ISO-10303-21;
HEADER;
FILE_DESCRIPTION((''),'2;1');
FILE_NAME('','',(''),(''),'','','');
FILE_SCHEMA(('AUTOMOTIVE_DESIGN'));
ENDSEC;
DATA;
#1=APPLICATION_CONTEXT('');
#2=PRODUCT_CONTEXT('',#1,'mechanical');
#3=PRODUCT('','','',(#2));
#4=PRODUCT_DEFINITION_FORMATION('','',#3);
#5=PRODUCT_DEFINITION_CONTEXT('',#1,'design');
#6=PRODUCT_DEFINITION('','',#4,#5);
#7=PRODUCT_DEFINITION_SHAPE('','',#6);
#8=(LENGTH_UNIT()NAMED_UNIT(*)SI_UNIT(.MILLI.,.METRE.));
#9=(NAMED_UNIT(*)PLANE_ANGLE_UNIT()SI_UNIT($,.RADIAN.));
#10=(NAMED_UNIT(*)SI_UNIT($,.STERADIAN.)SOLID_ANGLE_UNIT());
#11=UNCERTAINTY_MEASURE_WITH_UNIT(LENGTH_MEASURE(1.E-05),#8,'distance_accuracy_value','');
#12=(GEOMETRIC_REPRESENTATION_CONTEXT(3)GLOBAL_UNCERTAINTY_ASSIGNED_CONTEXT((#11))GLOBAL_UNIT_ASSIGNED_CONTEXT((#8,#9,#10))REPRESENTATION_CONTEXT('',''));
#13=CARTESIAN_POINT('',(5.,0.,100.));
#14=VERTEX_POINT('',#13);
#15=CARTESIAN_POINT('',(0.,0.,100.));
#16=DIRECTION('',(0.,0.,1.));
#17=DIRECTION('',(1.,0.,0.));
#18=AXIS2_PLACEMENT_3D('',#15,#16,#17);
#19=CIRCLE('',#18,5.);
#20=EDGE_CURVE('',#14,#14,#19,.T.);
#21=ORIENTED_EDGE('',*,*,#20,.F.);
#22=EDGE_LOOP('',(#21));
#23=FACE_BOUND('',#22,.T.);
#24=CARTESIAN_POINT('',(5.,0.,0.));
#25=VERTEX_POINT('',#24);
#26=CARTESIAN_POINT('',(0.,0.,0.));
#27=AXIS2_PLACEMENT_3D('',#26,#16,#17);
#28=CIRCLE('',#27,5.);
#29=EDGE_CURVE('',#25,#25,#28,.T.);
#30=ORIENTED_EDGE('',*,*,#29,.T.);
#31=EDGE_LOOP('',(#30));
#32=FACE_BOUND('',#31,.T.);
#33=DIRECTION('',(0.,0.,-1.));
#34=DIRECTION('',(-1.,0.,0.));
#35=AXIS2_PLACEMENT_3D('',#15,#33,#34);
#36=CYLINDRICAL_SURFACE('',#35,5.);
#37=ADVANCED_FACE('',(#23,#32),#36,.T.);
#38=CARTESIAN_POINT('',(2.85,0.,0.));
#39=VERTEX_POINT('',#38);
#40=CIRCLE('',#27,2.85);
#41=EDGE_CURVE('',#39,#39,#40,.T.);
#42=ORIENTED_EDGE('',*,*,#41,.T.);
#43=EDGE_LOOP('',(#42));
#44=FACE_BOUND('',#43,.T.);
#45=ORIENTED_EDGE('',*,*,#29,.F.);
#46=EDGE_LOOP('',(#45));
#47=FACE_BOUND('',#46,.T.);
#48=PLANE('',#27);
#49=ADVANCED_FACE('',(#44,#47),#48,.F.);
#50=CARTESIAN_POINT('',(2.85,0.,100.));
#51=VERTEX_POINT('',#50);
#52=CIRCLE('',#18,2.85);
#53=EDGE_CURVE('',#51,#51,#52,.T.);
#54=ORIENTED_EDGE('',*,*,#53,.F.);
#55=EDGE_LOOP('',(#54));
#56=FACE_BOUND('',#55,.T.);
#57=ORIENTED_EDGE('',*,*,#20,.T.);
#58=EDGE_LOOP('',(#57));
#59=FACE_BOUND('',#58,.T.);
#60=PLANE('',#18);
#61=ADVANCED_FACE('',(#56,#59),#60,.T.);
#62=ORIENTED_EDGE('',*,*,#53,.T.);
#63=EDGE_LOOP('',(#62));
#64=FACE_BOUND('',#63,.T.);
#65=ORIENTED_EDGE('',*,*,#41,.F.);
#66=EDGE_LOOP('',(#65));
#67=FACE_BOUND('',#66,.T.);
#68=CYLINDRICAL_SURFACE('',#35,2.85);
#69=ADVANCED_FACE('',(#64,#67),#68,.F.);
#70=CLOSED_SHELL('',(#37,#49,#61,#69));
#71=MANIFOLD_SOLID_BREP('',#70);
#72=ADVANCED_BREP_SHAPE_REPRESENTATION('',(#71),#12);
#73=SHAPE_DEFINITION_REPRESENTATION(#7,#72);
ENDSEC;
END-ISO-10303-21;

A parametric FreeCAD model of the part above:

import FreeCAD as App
import Part
import Sketcher

V = App.Vector

doc = App.newDocument("Part")
body = doc.addObject("PartDesign::Body", "Body")

# Sketch on XY plane
sketch1 = body.newObject("Sketcher::SketchObject", "Sketch")
sketch1.AttachmentSupport = (doc.getObject("XY_Plane"), [""])
sketch1.MapMode = "FlatFace"
sketch1.addGeometry([
    Part.Circle(V(0, 0, 0), V(0, 0, 1), 5),
    Part.Circle(V(0, 0, 0), V(0, 0, 1), 2.9),
], False)
sketch1.addConstraint([
    Sketcher.Constraint("Coincident", 0, 3, -1, 1),
    Sketcher.Constraint("Coincident", 1, 3, -1, 1),
    Sketcher.Constraint("Diameter", 0, 10.0),
    Sketcher.Constraint("Diameter", 1, 5.7),
])
pad1 = body.newObject("PartDesign::Pad", "Pad")
pad1.Profile = sketch1
pad1.Length = 100

doc.recompute()
